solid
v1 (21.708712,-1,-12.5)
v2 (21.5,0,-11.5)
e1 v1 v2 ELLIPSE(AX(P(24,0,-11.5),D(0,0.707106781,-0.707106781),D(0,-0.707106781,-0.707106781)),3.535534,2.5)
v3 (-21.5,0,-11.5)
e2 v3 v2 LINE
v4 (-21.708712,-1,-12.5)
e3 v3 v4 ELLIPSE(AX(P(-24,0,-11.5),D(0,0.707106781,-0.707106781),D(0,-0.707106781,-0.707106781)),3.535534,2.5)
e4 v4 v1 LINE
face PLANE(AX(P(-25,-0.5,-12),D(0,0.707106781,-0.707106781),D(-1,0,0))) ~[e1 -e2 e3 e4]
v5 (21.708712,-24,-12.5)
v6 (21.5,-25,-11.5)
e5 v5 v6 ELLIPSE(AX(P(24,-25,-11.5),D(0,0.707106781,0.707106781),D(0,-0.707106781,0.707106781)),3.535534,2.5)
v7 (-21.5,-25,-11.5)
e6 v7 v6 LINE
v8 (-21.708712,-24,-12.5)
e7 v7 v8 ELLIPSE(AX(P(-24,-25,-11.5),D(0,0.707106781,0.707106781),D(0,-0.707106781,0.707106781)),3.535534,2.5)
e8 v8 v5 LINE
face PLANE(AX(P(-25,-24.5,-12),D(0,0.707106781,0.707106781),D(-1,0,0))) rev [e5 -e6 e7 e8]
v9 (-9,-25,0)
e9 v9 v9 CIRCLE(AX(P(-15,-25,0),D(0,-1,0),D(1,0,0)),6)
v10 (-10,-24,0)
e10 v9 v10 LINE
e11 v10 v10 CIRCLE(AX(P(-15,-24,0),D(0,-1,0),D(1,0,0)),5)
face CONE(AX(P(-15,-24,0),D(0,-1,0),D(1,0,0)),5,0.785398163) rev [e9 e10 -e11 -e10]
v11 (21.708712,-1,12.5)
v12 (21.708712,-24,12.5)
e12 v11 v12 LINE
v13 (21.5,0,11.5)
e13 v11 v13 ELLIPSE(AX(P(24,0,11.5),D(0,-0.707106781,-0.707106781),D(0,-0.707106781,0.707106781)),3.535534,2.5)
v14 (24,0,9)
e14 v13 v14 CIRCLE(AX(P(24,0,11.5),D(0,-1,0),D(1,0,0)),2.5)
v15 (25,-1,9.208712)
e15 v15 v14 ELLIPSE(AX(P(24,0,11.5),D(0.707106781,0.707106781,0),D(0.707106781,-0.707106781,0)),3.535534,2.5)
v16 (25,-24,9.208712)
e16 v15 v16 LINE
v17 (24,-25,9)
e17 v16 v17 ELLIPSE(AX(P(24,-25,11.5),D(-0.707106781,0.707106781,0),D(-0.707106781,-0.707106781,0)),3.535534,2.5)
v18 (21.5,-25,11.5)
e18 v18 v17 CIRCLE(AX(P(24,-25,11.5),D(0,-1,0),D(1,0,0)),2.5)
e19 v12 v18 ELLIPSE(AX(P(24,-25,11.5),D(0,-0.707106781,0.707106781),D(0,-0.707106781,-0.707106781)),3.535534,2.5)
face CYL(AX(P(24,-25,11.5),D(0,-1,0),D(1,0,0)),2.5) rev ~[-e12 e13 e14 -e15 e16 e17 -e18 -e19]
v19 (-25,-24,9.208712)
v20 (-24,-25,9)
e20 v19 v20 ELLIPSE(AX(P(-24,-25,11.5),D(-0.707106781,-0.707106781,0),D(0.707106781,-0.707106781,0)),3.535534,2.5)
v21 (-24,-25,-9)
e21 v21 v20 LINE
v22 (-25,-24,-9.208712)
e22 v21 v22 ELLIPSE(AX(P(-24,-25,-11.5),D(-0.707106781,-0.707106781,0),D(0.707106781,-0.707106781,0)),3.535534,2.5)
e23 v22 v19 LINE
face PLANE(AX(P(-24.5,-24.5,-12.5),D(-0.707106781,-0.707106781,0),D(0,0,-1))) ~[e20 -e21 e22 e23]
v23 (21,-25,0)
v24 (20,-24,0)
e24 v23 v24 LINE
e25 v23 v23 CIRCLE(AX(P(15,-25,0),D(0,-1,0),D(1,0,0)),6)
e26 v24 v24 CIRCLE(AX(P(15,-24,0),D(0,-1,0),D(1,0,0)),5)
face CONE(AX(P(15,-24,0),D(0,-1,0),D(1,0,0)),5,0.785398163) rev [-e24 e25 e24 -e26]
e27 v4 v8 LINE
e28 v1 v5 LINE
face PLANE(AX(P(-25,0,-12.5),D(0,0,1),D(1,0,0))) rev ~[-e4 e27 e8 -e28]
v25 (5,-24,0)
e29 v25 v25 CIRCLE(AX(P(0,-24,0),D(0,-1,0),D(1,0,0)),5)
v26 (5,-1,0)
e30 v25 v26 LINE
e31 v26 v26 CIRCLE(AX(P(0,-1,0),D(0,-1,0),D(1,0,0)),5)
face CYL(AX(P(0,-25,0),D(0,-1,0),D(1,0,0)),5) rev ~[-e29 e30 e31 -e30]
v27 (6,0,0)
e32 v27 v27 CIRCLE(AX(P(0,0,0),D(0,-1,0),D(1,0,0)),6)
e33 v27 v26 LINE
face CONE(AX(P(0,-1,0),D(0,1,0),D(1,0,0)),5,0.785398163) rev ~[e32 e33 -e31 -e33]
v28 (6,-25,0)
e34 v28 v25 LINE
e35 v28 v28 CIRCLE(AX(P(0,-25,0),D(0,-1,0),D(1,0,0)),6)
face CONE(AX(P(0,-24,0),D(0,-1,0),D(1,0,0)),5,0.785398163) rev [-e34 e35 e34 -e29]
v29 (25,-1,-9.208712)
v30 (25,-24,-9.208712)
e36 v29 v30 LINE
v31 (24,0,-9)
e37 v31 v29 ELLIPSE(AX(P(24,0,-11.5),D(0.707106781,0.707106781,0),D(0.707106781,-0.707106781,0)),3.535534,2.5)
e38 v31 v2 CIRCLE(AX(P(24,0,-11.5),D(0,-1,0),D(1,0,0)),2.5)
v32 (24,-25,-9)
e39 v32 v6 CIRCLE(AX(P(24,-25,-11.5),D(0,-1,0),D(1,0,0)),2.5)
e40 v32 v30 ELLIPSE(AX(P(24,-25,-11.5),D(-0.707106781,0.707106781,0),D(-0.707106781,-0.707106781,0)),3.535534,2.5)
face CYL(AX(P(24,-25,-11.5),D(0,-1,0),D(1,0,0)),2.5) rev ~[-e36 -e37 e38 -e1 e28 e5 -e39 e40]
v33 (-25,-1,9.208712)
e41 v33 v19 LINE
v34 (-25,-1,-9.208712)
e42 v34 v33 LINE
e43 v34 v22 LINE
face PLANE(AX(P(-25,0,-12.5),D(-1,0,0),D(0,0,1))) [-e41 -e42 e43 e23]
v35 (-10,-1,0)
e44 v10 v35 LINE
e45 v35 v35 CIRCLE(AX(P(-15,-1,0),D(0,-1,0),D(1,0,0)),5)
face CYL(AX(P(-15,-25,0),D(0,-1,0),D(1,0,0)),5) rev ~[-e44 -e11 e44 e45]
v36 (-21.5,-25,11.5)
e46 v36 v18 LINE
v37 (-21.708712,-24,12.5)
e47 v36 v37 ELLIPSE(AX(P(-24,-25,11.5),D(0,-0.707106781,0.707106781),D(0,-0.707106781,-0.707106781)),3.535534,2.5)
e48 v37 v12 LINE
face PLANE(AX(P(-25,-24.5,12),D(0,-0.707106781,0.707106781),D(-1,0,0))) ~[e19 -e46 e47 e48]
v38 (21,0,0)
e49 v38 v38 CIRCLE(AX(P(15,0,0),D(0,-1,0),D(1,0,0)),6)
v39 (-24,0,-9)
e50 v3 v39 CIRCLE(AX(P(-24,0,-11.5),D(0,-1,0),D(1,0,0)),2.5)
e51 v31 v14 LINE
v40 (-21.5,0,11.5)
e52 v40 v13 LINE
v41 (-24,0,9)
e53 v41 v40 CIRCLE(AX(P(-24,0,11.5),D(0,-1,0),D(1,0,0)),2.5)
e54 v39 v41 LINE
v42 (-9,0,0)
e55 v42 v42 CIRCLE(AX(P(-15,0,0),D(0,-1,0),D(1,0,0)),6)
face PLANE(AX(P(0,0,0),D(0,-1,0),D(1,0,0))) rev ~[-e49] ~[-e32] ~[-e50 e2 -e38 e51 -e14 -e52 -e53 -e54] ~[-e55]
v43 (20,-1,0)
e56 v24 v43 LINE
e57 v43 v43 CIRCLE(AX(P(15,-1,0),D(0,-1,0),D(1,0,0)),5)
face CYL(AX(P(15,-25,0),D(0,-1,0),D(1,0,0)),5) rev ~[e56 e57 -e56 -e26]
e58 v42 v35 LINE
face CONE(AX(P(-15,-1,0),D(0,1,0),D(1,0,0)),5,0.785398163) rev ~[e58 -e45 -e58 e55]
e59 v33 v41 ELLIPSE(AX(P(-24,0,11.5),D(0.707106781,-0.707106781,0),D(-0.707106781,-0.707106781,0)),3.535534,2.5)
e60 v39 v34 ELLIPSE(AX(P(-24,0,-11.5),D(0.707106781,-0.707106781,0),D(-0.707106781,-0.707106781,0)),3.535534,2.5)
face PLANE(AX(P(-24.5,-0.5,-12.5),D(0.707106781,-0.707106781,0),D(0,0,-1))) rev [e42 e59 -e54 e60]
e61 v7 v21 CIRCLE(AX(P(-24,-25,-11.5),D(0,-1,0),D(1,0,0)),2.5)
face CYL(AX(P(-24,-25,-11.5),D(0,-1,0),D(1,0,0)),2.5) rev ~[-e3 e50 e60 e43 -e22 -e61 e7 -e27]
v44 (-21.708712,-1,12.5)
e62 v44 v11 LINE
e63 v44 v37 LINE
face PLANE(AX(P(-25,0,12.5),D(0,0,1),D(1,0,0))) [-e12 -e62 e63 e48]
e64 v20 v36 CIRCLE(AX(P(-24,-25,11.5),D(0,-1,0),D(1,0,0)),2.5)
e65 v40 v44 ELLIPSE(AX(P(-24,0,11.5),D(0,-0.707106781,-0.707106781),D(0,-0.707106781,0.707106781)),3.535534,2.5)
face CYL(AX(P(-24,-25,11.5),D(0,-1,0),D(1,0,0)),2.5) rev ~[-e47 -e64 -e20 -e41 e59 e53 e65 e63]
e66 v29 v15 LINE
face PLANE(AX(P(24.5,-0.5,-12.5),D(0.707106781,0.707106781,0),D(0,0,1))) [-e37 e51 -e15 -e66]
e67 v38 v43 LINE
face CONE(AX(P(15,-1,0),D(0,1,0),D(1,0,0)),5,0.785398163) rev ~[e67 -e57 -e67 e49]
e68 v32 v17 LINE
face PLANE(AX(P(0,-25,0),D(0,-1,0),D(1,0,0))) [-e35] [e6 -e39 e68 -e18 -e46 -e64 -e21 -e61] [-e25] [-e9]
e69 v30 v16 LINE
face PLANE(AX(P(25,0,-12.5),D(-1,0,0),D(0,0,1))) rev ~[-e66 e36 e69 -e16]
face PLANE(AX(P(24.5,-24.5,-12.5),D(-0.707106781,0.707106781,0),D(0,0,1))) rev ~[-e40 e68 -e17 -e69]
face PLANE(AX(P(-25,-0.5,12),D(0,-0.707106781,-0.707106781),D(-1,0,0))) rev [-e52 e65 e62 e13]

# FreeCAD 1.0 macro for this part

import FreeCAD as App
import Part
import Sketcher

V = App.Vector


def edges_at(feature, points):
    """Names of the edges that pass closest to the given points."""
    edges = feature.Shape.Edges
    near = lambda p: min(range(len(edges)), key=lambda i: edges[i].distToShape(Part.Vertex(*p))[0])
    return sorted({f"Edge{near(p) + 1}" for p in points})

doc = App.newDocument("Part")
body = doc.addObject("PartDesign::Body", "Body")

sketch1 = body.newObject("Sketcher::SketchObject", "Sketch")
sketch1.AttachmentSupport = (doc.getObject("XZ_Plane"), [""])
sketch1.MapMode = "FlatFace"
sketch1.addGeometry(Part.LineSegment(V(-25, 12.5, 0), V(-25, -12.5, 0)), False)
sketch1.addGeometry(Part.LineSegment(V(-25, -12.5, 0), V(25, -12.5, 0)), False)
sketch1.addGeometry(Part.LineSegment(V(25, -12.5, 0), V(25, 12.5, 0)), False)
sketch1.addGeometry(Part.LineSegment(V(25, 12.5, 0), V(-25, 12.5, 0)), False)
sketch1.addConstraint(Sketcher.Constraint("Coincident", 0, 2, 1, 1))
sketch1.addConstraint(Sketcher.Constraint("Coincident", 1, 2, 2, 1))
sketch1.addConstraint(Sketcher.Constraint("Coincident", 2, 2, 3, 1))
sketch1.addConstraint(Sketcher.Constraint("Coincident", 3, 2, 0, 1))
sketch1.addConstraint(Sketcher.Constraint("Vertical", 0))
sketch1.addConstraint(Sketcher.Constraint("Horizontal", 1))
sketch1.addConstraint(Sketcher.Constraint("Vertical", 2))
sketch1.addConstraint(Sketcher.Constraint("Horizontal", 3))
sketch1.addConstraint(Sketcher.Constraint("Symmetric", 0, 2, 2, 2, -1, 1))
sketch1.addConstraint(Sketcher.Constraint("DistanceX", 1, 1, 1, 2, 50.0))
sketch1.addConstraint(Sketcher.Constraint("DistanceY", 0, 2, 0, 1, 25.0))
pad1 = body.newObject("PartDesign::Pad", "Pad")
pad1.Profile = sketch1
pad1.Length = 25

sketch2 = body.newObject("Sketcher::SketchObject", "Sketch001")
sketch2.AttachmentSupport = (doc.getObject("XZ_Plane"), [""])
sketch2.MapMode = "FlatFace"
sketch2.AttachmentOffset = App.Placement(V(0, 0, 25), App.Rotation())
sketch2.addGeometry(Part.Circle(V(0, 0, 0), V(0, 0, 1), 5), False)
sketch2.addGeometry(Part.Circle(V(15, 0, 0), V(0, 0, 1), 5), False)
sketch2.addGeometry(Part.Circle(V(-15, 0, 0), V(0, 0, 1), 5), False)
sketch2.addConstraint(Sketcher.Constraint("Coincident", 0, 3, -1, 1))
sketch2.addConstraint(Sketcher.Constraint("Equal", 0, 1))
sketch2.addConstraint(Sketcher.Constraint("Equal", 1, 2))
sketch2.addConstraint(Sketcher.Constraint("Symmetric", 1, 3, 2, 3, -1, 1))
sketch2.addConstraint(Sketcher.Constraint("PointOnObject", 1, 3, -1))
sketch2.addConstraint(Sketcher.Constraint("Diameter", 0, 10.0))
sketch2.addConstraint(Sketcher.Constraint("DistanceX", -1, 1, 1, 3, 15.0))
pocket1 = body.newObject("PartDesign::Pocket", "Pocket")
pocket1.Profile = sketch2
pocket1.Length = 25
doc.recompute()

chamfer = body.newObject("PartDesign::Chamfer", "Chamfer")
chamfer.Base = (pocket1, edges_at(pocket1, [
    (0, -25, -12.5),
    (-25, -25, 0),
    (25, -25, 0),
    (0, -25, 12.5),
    (-20, -25, 0),
    (-5, -25, 0),
    (10, -25, 0),
    (0, 0, -12.5),
    (-25, 0, 0),
    (25, 0, 0),
    (0, 0, 12.5),
    (-20, 0, 0),
    (-5, 0, 0),
    (10, 0, 0),
]))
chamfer.Size = 1

sketch3 = body.newObject("Sketcher::SketchObject", "Sketch002")
sketch3.AttachmentSupport = (doc.getObject("XZ_Plane"), [""])
sketch3.MapMode = "FlatFace"
sketch3.AttachmentOffset = App.Placement(V(0, 0, 25), App.Rotation())
sketch3.addGeometry(Part.Circle(V(-24, 11.5, 0), V(0, 0, 1), 2.5), False)
sketch3.addGeometry(Part.Circle(V(24, 11.5, 0), V(0, 0, 1), 2.5), False)
sketch3.addGeometry(Part.Circle(V(24, -11.5, 0), V(0, 0, 1), 2.5), False)
sketch3.addGeometry(Part.Circle(V(-24, -11.5, 0), V(0, 0, 1), 2.5), False)
sketch3.addConstraint(Sketcher.Constraint("Equal", 0, 1))
sketch3.addConstraint(Sketcher.Constraint("Equal", 1, 2))
sketch3.addConstraint(Sketcher.Constraint("Equal", 2, 3))
sketch3.addConstraint(Sketcher.Constraint("Symmetric", 0, 3, 2, 3, -1, 1))
sketch3.addConstraint(Sketcher.Constraint("Symmetric", 1, 3, 3, 3, -1, 1))
sketch3.addConstraint(Sketcher.Constraint("Symmetric", 0, 3, 1, 3, -2))
sketch3.addConstraint(Sketcher.Constraint("Diameter", 0, 5.0))
sketch3.addConstraint(Sketcher.Constraint("DistanceX", 0, 3, -1, 1, 24.0))
sketch3.addConstraint(Sketcher.Constraint("DistanceY", 2, 3, 1, 3, 23.0))
pocket2 = body.newObject("PartDesign::Pocket", "Pocket001")
pocket2.Profile = sketch3
pocket2.Length = 25

doc.recompute()
